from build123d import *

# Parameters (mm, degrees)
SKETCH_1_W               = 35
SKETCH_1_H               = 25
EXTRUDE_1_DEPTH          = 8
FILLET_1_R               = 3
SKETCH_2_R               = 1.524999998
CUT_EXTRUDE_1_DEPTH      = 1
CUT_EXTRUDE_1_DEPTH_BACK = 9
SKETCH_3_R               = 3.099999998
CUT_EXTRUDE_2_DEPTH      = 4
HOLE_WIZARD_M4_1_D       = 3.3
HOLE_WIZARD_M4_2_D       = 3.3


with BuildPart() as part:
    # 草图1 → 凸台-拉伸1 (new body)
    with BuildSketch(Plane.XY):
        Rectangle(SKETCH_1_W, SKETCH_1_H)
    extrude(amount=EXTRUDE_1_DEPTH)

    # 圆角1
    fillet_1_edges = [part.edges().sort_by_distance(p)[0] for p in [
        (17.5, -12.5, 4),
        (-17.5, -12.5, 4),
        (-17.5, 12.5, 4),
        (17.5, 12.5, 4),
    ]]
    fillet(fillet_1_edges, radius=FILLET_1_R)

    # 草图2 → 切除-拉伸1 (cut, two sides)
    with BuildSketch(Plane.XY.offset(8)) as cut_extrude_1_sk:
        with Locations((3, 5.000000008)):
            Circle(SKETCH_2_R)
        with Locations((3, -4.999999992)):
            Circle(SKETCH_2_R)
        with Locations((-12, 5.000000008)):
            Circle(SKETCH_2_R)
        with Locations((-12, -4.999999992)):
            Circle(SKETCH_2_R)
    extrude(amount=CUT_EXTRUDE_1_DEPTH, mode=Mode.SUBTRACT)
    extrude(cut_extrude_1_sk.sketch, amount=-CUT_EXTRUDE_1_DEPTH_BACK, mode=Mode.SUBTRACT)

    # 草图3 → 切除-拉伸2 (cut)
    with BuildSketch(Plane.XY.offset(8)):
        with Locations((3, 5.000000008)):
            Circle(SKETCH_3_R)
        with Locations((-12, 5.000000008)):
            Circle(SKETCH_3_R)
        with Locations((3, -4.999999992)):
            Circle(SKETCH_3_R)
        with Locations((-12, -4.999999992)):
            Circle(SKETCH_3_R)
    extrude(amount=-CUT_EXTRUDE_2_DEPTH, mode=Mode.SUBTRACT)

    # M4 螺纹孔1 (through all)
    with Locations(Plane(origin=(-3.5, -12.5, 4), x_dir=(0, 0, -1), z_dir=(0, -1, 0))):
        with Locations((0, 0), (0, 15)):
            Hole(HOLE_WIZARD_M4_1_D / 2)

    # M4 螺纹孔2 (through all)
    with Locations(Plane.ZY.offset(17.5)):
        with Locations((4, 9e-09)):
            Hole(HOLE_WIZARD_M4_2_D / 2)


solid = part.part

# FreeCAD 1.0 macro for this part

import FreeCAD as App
import Part
import Sketcher

V = App.Vector
Q = App.Units.Quantity


def edges_at(feature, points):
    """Names of the edges that pass closest to the given points."""
    edges = feature.Shape.Edges
    near = lambda p: min(range(len(edges)), key=lambda i: edges[i].distToShape(Part.Vertex(*p))[0])
    return sorted({f"Edge{near(p) + 1}" for p in points})

doc = App.newDocument("Part")
params = doc.addObject("Spreadsheet::Sheet", "Params")
for row, (alias, value) in enumerate([
    ("sketch1_width", "35 mm"),
    ("sketch1_height", "25 mm"),
    ("pad1_length", "8 mm"),
    ("fillet_radius", "3 mm"),
    ("sketch2_diameter", "3.05 mm"),
    ("sketch3_diameter", "6.2 mm"),
    ("pocket2_length", "4 mm"),
    ("sketch4_diameter", "3.3 mm"),
    ("hole_diameter", "3.3 mm"),
    ("sketch5_diameter", "3.3 mm"),
    ("hole2_diameter", "3.3 mm"),
], start=1):
    params.set(f"A{row}", alias)
    params.set(f"B{row}", "=" + value)
    params.setAlias(f"B{row}", alias)

body = doc.addObject("PartDesign::Body", "Body")

# Sketch on XY plane
sketch1 = body.newObject("Sketcher::SketchObject", "Sketch")
sketch1.AttachmentSupport = (doc.getObject("XY_Plane"), [""])
sketch1.MapMode = "FlatFace"
sketch1.addGeometry(Part.LineSegment(V(-17.5, 12.5, 0), V(-17.5, -12.5, 0)), False)
sketch1.addGeometry(Part.LineSegment(V(-17.5, -12.5, 0), V(17.5, -12.5, 0)), False)
sketch1.addGeometry(Part.LineSegment(V(17.5, -12.5, 0), V(17.5, 12.5, 0)), False)
sketch1.addGeometry(Part.LineSegment(V(17.5, 12.5, 0), V(-17.5, 12.5, 0)), False)
sketch1.addConstraint(Sketcher.Constraint("Coincident", 0, 2, 1, 1))
sketch1.addConstraint(Sketcher.Constraint("Coincident", 1, 2, 2, 1))
sketch1.addConstraint(Sketcher.Constraint("Coincident", 2, 2, 3, 1))
sketch1.addConstraint(Sketcher.Constraint("Coincident", 3, 2, 0, 1))
sketch1.addConstraint(Sketcher.Constraint("Vertical", 0))
sketch1.addConstraint(Sketcher.Constraint("Horizontal", 1))
sketch1.addConstraint(Sketcher.Constraint("Vertical", 2))
sketch1.addConstraint(Sketcher.Constraint("Horizontal", 3))
sketch1.addConstraint(Sketcher.Constraint("Symmetric", 0, 2, 2, 2, -1, 1))
sketch1.addConstraint(Sketcher.Constraint("DistanceX", 1, 1, 1, 2, Q("35 mm")))
sketch1.addConstraint(Sketcher.Constraint("DistanceY", 0, 2, 0, 1, Q("25 mm")))
sketch1.setExpression("Constraints[9]", "Params.sketch1_width")
sketch1.setExpression("Constraints[10]", "Params.sketch1_height")
pad1 = body.newObject("PartDesign::Pad", "Pad")
pad1.Profile = sketch1
pad1.setExpression("Length", "Params.pad1_length")
doc.recompute()

fillet = body.newObject("PartDesign::Fillet", "Fillet")
fillet.Base = (pad1, edges_at(pad1, [
    (17.5, -12.5, 4),
    (-17.5, -12.5, 4),
    (-17.5, 12.5, 4),
    (17.5, 12.5, 4),
]))
fillet.setExpression("Radius", "Params.fillet_radius")

# Sketch on XY plane
sketch2 = body.newObject("Sketcher::SketchObject", "Sketch001")
sketch2.AttachmentSupport = (doc.getObject("XY_Plane"), [""])
sketch2.MapMode = "FlatFace"
sketch2.AttachmentOffset = App.Placement(V(0, 0, 8), App.Rotation())
sketch2.addGeometry(Part.Circle(V(3, 5, 0), V(0, 0, 1), 1.525), False)
sketch2.addGeometry(Part.Circle(V(3, -5, 0), V(0, 0, 1), 1.525), False)
sketch2.addGeometry(Part.Circle(V(-12, 5, 0), V(0, 0, 1), 1.525), False)
sketch2.addGeometry(Part.Circle(V(-12, -5, 0), V(0, 0, 1), 1.525), False)
sketch2.addConstraint(Sketcher.Constraint("Equal", 0, 1))
sketch2.addConstraint(Sketcher.Constraint("Equal", 1, 2))
sketch2.addConstraint(Sketcher.Constraint("Equal", 2, 3))
sketch2.addConstraint(Sketcher.Constraint("Symmetric", 0, 3, 1, 3, -1))
sketch2.addConstraint(Sketcher.Constraint("Symmetric", 2, 3, 3, 3, -1))
sketch2.addConstraint(Sketcher.Constraint("Horizontal", 0, 3, 2, 3))
sketch2.addConstraint(Sketcher.Constraint("Diameter", 0, Q("3.05 mm")))
sketch2.addConstraint(Sketcher.Constraint("DistanceX", -1, 1, 0, 3, Q("3 mm")))
sketch2.addConstraint(Sketcher.Constraint("DistanceY", -1, 1, 0, 3, Q("5 mm")))
sketch2.addConstraint(Sketcher.Constraint("DistanceX", 2, 3, -1, 1, Q("12 mm")))
sketch2.setExpression("Constraints[6]", "Params.sketch2_diameter")
pocket1 = body.newObject("PartDesign::Pocket", "Pocket")
pocket1.Profile = sketch2
pocket1.Type = "ThroughAll"
pocket1.Midplane = True

# Sketch on XY plane
sketch3 = body.newObject("Sketcher::SketchObject", "Sketch002")
sketch3.AttachmentSupport = (doc.getObject("XY_Plane"), [""])
sketch3.MapMode = "FlatFace"
sketch3.AttachmentOffset = App.Placement(V(0, 0, 8), App.Rotation())
sketch3.addGeometry(Part.Circle(V(3, 5, 0), V(0, 0, 1), 3.1), False)
sketch3.addGeometry(Part.Circle(V(-12, 5, 0), V(0, 0, 1), 3.1), False)
sketch3.addGeometry(Part.Circle(V(3, -5, 0), V(0, 0, 1), 3.1), False)
sketch3.addGeometry(Part.Circle(V(-12, -5, 0), V(0, 0, 1), 3.1), False)
sketch3.addConstraint(Sketcher.Constraint("Equal", 0, 1))
sketch3.addConstraint(Sketcher.Constraint("Equal", 1, 2))
sketch3.addConstraint(Sketcher.Constraint("Equal", 2, 3))
sketch3.addConstraint(Sketcher.Constraint("Symmetric", 0, 3, 2, 3, -1))
sketch3.addConstraint(Sketcher.Constraint("Symmetric", 1, 3, 3, 3, -1))
sketch3.addConstraint(Sketcher.Constraint("Horizontal", 0, 3, 1, 3))
sketch3.addConstraint(Sketcher.Constraint("Diameter", 0, Q("6.2 mm")))
sketch3.addConstraint(Sketcher.Constraint("DistanceX", -1, 1, 0, 3, Q("3 mm")))
sketch3.addConstraint(Sketcher.Constraint("DistanceY", -1, 1, 0, 3, Q("5 mm")))
sketch3.addConstraint(Sketcher.Constraint("DistanceX", 1, 3, -1, 1, Q("12 mm")))
sketch3.setExpression("Constraints[6]", "Params.sketch3_diameter")
pocket2 = body.newObject("PartDesign::Pocket", "Pocket001")
pocket2.Profile = sketch3
pocket2.setExpression("Length", "Params.pocket2_length")

# Sketch on XZ plane
sketch4 = body.newObject("Sketcher::SketchObject", "Sketch003")
sketch4.AttachmentSupport = (doc.getObject("XZ_Plane"), [""])
sketch4.MapMode = "FlatFace"
sketch4.AttachmentOffset = App.Placement(V(0, 0, 12.5), App.Rotation())
sketch4.addGeometry(Part.Circle(V(-3.5, 4, 0), V(0, 0, 1), 1.65), False)
sketch4.addGeometry(Part.Circle(V(11.5, 4, 0), V(0, 0, 1), 1.65), False)
sketch4.addConstraint(Sketcher.Constraint("Equal", 0, 1))
sketch4.addConstraint(Sketcher.Constraint("Horizontal", 0, 3, 1, 3))
sketch4.addConstraint(Sketcher.Constraint("Diameter", 0, Q("3.3 mm")))
sketch4.addConstraint(Sketcher.Constraint("DistanceY", -1, 1, 0, 3, Q("4 mm")))
sketch4.addConstraint(Sketcher.Constraint("DistanceX", 0, 3, 1, 3, Q("15 mm")))
sketch4.addConstraint(Sketcher.Constraint("DistanceX", 0, 3, -1, 1, Q("3.5 mm")))
sketch4.setExpression("Constraints[2]", "Params.sketch4_diameter")
doc.recompute()
hole = body.newObject("PartDesign::Hole", "Hole")
hole.Profile = sketch4
hole.ThreadType = "None"
hole.setExpression("Diameter", "Params.hole_diameter")
hole.DepthType = "ThroughAll"

# Sketch on YZ plane
sketch5 = body.newObject("Sketcher::SketchObject", "Sketch004")
sketch5.AttachmentSupport = (doc.getObject("YZ_Plane"), [""])
sketch5.MapMode = "FlatFace"
sketch5.AttachmentOffset = App.Placement(V(0, 0, -17.5), App.Rotation())
sketch5.addGeometry(Part.Circle(V(0, 4, 0), V(0, 0, 1), 1.65), False)
sketch5.addConstraint(Sketcher.Constraint("PointOnObject", 0, 3, -2))
sketch5.addConstraint(Sketcher.Constraint("Diameter", 0, Q("3.3 mm")))
sketch5.addConstraint(Sketcher.Constraint("DistanceY", -1, 1, 0, 3, Q("4 mm")))
sketch5.setExpression("Constraints[1]", "Params.sketch5_diameter")
doc.recompute()
hole2 = body.newObject("PartDesign::Hole", "Hole001")
hole2.Profile = sketch5
hole2.ThreadType = "None"
hole2.setExpression("Diameter", "Params.hole2_diameter")
hole2.DepthType = "ThroughAll"
hole2.Reversed = True

doc.recompute()
